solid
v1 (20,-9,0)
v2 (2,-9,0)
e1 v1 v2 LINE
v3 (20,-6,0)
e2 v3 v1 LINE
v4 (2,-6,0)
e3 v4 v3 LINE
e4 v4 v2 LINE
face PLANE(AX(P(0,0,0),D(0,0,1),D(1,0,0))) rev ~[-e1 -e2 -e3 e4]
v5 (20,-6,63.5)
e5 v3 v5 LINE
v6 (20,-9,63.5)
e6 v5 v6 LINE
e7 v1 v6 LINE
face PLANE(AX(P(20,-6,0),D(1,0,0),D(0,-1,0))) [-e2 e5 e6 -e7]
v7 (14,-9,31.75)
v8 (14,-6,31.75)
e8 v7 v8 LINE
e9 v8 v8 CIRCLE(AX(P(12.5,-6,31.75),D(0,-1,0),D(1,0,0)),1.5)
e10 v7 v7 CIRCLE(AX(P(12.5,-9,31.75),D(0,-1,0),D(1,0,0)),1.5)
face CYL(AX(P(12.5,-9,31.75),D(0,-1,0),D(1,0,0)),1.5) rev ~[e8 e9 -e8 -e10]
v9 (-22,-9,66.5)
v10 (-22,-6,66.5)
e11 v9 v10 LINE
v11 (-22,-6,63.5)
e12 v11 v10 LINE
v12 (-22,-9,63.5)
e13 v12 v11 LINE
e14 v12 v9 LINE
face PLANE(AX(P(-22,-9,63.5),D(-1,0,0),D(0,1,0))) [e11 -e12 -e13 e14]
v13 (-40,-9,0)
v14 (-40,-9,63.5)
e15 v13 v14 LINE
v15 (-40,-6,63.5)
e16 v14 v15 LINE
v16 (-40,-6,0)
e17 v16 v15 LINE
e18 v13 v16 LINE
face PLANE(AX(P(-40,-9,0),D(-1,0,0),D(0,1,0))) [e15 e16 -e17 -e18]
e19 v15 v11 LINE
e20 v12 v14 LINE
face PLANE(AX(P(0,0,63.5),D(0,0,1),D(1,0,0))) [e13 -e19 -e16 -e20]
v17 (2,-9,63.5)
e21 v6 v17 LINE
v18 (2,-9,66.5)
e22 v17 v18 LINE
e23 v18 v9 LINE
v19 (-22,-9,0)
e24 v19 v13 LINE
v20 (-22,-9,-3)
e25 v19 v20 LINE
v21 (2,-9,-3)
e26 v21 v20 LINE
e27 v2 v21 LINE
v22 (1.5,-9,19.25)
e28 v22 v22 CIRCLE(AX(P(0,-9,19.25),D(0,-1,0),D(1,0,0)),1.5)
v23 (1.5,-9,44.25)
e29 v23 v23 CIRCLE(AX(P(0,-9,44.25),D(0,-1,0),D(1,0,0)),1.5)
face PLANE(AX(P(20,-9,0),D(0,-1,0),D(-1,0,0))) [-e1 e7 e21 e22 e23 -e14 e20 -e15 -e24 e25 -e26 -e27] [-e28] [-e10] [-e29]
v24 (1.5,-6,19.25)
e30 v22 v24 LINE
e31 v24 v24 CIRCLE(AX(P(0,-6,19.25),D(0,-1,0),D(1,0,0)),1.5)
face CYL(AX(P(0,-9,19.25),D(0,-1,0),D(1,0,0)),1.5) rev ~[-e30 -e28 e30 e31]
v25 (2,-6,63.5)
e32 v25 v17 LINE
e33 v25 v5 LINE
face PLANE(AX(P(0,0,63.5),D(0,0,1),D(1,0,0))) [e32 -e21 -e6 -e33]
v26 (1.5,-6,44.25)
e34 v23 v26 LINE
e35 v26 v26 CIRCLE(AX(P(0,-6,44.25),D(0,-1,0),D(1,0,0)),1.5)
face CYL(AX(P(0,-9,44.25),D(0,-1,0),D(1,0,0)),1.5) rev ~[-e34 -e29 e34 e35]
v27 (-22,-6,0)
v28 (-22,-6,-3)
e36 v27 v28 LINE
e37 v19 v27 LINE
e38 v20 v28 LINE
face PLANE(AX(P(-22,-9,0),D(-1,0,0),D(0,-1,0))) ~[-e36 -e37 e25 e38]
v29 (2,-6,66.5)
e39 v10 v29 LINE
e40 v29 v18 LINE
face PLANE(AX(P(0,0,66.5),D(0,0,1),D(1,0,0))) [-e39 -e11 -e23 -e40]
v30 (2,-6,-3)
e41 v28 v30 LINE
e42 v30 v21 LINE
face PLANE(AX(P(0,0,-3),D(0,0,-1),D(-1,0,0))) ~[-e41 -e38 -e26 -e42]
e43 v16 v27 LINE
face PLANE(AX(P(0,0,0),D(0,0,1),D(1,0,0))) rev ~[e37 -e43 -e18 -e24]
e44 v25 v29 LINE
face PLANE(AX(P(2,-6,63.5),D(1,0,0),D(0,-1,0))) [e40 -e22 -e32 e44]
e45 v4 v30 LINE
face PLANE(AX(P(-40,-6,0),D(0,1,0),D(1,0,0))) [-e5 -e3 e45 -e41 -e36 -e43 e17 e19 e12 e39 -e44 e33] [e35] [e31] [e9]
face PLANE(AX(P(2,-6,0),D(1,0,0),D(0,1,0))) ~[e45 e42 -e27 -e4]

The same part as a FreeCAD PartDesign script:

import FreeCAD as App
import Part
import Sketcher

V = App.Vector
Q = App.Units.Quantity

doc = App.newDocument("Part")
body = doc.addObject("PartDesign::Body", "Body")

# Sketch on XY plane
sketch1 = doc.addObject("Sketcher::SketchObject", "Sketch")
body.addObject(sketch1)
sketch1.AttachmentSupport = (doc.XY_Plane, [""])
sketch1.MapMode = "FlatFace"
sketch1.addGeometry(Part.LineSegment(V(-40, -9, 0), V(20, -9, 0)), False)
sketch1.addGeometry(Part.LineSegment(V(20, -9, 0), V(20, -6, 0)), False)
sketch1.addGeometry(Part.LineSegment(V(20, -6, 0), V(-40, -6, 0)), False)
sketch1.addGeometry(Part.LineSegment(V(-40, -6, 0), V(-40, -9, 0)), False)
sketch1.addConstraint(Sketcher.Constraint("Coincident", 0, 2, 1, 1))
sketch1.addConstraint(Sketcher.Constraint("Coincident", 1, 2, 2, 1))
sketch1.addConstraint(Sketcher.Constraint("Coincident", 2, 2, 3, 1))
sketch1.addConstraint(Sketcher.Constraint("Coincident", 3, 2, 0, 1))
sketch1.addConstraint(Sketcher.Constraint("Horizontal", 0))
sketch1.addConstraint(Sketcher.Constraint("Vertical", 1))
sketch1.addConstraint(Sketcher.Constraint("Horizontal", 2))
sketch1.addConstraint(Sketcher.Constraint("Vertical", 3))
sketch1.addConstraint(Sketcher.Constraint("DistanceX", 0, 1, 0, 2, Q("60 mm")))
sketch1.addConstraint(Sketcher.Constraint("DistanceY", 1, 1, 1, 2, Q("3 mm")))
sketch1.addConstraint(Sketcher.Constraint("DistanceX", -1, 1, 0, 2, Q("20 mm")))
sketch1.addConstraint(Sketcher.Constraint("DistanceY", 0, 2, -1, 1, Q("9 mm")))
pad1 = doc.addObject("PartDesign::Pad", "Pad")
body.addObject(pad1)
pad1.Profile = sketch1
pad1.Length = 63.5

# Sketch on XY plane
sketch2 = doc.addObject("Sketcher::SketchObject", "Sketch001")
body.addObject(sketch2)
sketch2.AttachmentSupport = (doc.XY_Plane, [""])
sketch2.MapMode = "FlatFace"
sketch2.AttachmentOffset = App.Placement(V(0, 0, 63.5), App.Rotation())
sketch2.addGeometry(Part.LineSegment(V(-22, -6, 0), V(-22, -9, 0)), False)
sketch2.addGeometry(Part.LineSegment(V(-22, -9, 0), V(2, -9, 0)), False)
sketch2.addGeometry(Part.LineSegment(V(2, -9, 0), V(2, -6, 0)), False)
sketch2.addGeometry(Part.LineSegment(V(2, -6, 0), V(-22, -6, 0)), False)
sketch2.addConstraint(Sketcher.Constraint("Coincident", 0, 2, 1, 1))
sketch2.addConstraint(Sketcher.Constraint("Coincident", 1, 2, 2, 1))
sketch2.addConstraint(Sketcher.Constraint("Coincident", 2, 2, 3, 1))
sketch2.addConstraint(Sketcher.Constraint("Coincident", 3, 2, 0, 1))
sketch2.addConstraint(Sketcher.Constraint("Vertical", 0))
sketch2.addConstraint(Sketcher.Constraint("Horizontal", 1))
sketch2.addConstraint(Sketcher.Constraint("Vertical", 2))
sketch2.addConstraint(Sketcher.Constraint("Horizontal", 3))
sketch2.addConstraint(Sketcher.Constraint("DistanceX", 1, 1, 1, 2, Q("24 mm")))
sketch2.addConstraint(Sketcher.Constraint("DistanceY", 0, 2, 0, 1, Q("3 mm")))
sketch2.addConstraint(Sketcher.Constraint("DistanceX", 0, 2, -1, 1, Q("22 mm")))
sketch2.addConstraint(Sketcher.Constraint("DistanceY", 0, 2, -1, 1, Q("9 mm")))
pad2 = doc.addObject("PartDesign::Pad", "Pad001")
body.addObject(pad2)
pad2.Profile = sketch2
pad2.Length = 3
doc.recompute()

datumplane = doc.addObject("PartDesign::Plane", "DatumPlane")
body.addObject(datumplane)
datumplane.AttachmentSupport = (doc.XY_Plane, [""])
datumplane.MapMode = "FlatFace"
datumplane.AttachmentOffset = App.Placement(V(0, 0, 31.75), App.Rotation())
mirrored = doc.addObject("PartDesign::Mirrored", "Mirrored")
body.addObject(mirrored)
mirrored.Originals = [pad2]
mirrored.MirrorPlane = (datumplane, [""])
body.Tip = mirrored

# Sketch on XZ plane
sketch3 = doc.addObject("Sketcher::SketchObject", "Sketch002")
body.addObject(sketch3)
sketch3.AttachmentSupport = (doc.XZ_Plane, [""])
sketch3.MapMode = "FlatFace"
sketch3.AttachmentOffset = App.Placement(V(0, 0, 9), App.Rotation())
sketch3.addGeometry(Part.Circle(V(12.5, 31.8, 0), V(0, 0, 1), 1.5), False)
sketch3.addGeometry(Part.Circle(V(0, 44.2, 0), V(0, 0, 1), 1.5), False)
sketch3.addGeometry(Part.Circle(V(0, 19.2, 0), V(0, 0, 1), 1.5), False)
sketch3.addConstraint(Sketcher.Constraint("Equal", 0, 1))
sketch3.addConstraint(Sketcher.Constraint("Equal", 1, 2))
sketch3.addConstraint(Sketcher.Constraint("PointOnObject", 1, 3, -2))
sketch3.addConstraint(Sketcher.Constraint("PointOnObject", 2, 3, -2))
sketch3.addConstraint(Sketcher.Constraint("Diameter", 0, Q("3 mm")))
sketch3.addConstraint(Sketcher.Constraint("DistanceY", 2, 3, 1, 3, Q("25 mm")))
sketch3.addConstraint(Sketcher.Constraint("DistanceX", -1, 1, 0, 3, Q("12.5 mm")))
sketch3.addConstraint(Sketcher.Constraint("DistanceY", 0, 3, 1, 3, Q("12.5 mm")))
sketch3.addConstraint(Sketcher.Constraint("DistanceY", -1, 1, 0, 3, Q("31.75 mm")))
pocket1 = doc.addObject("PartDesign::Pocket", "Pocket")
body.addObject(pocket1)
pocket1.Profile = sketch3
pocket1.Length = 3

doc.recompute()
